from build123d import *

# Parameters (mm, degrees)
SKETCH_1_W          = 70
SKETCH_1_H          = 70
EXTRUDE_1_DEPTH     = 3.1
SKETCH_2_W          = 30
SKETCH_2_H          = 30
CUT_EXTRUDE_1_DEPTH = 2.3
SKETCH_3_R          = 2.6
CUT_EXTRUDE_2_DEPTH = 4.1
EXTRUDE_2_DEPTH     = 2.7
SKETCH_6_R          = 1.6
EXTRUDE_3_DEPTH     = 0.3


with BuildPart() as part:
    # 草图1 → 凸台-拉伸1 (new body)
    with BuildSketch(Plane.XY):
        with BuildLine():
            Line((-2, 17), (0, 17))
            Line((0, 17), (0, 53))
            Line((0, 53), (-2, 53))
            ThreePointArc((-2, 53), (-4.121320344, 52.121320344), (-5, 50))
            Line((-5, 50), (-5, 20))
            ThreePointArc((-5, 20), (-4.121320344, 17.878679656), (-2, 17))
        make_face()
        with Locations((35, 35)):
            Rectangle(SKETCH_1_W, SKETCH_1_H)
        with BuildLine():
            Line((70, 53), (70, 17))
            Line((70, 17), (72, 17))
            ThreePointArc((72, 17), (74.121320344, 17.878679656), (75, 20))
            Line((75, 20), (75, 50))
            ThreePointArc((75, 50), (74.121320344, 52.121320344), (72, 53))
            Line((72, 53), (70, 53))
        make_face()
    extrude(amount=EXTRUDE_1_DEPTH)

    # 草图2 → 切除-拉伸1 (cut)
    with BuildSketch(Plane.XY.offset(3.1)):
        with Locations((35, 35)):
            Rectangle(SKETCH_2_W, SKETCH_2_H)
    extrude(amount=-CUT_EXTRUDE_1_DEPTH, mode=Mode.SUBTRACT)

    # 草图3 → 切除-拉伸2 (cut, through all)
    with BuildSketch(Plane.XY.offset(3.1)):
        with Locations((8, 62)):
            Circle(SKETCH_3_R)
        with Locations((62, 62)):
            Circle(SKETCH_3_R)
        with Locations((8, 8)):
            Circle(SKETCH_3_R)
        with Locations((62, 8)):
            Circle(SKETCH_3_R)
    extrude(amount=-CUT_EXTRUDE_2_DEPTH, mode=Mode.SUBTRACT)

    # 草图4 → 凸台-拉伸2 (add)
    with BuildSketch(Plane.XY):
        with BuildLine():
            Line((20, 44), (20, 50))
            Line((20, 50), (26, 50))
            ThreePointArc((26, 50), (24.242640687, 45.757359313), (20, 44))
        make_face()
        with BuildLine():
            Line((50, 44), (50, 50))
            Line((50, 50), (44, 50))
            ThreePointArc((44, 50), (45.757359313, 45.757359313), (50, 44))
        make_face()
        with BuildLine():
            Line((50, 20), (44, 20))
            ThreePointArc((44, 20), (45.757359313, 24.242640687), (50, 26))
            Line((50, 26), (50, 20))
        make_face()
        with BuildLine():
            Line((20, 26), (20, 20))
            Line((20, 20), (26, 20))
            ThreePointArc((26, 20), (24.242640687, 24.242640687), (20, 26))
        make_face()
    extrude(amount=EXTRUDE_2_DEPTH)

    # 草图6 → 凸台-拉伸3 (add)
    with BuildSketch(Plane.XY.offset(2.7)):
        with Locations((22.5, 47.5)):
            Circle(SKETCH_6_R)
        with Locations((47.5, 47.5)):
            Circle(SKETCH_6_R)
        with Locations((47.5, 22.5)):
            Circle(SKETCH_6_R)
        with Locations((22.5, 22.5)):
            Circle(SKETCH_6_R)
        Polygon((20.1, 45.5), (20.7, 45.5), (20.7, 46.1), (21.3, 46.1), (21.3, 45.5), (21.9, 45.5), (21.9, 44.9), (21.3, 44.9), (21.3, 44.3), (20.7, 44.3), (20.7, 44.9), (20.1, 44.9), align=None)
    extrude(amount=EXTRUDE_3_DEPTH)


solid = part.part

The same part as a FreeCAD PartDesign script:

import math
import FreeCAD as App
import Part
import Sketcher
Q = App.Units.Quantity


def add_polygon(sketch, points):
    """Adds a closed chain of lines whose ends are joined by coincident constraints."""
    first, n = sketch.GeometryCount, len(points)
    for a, b in zip(points, points[1:] + points[:1]):
        sketch.addGeometry(Part.LineSegment(App.Vector(*a, 0), App.Vector(*b, 0)), False)
    for i in range(n):
        sketch.addConstraint(Sketcher.Constraint("Coincident", first + i, 2, first + (i + 1) % n, 1))

doc = App.newDocument("Part")
params = doc.addObject("Spreadsheet::Sheet", "Params")
for row, (alias, value) in enumerate([
    ("sketch1_radius", "3 mm"),
    ("sketch1_width", "2 mm"),
    ("sketch1_width2", "70 mm"),
    ("sketch1_height", "17 mm"),
    ("sketch1_height2", "30 mm"),
    ("pad1_length", "3.1 mm"),
    ("sketch2_width", "30 mm"),
    ("pocket1_length", "2.3 mm"),
    ("sketch3_diameter", "5.2 mm"),
    ("sketch4_radius", "6 mm"),
    ("pad2_length", "2.7 mm"),
    ("sketch5_diameter", "3.2 mm"),
    ("sketch5_width", "0.6 mm"),
    ("pad3_length", "0.3 mm"),
], start=1):
    params.set(f"A{row}", alias)
    params.set(f"B{row}", "=" + value)
    params.setAlias(f"B{row}", alias)

body = doc.addObject("PartDesign::Body", "Body")

# Sketch on XY plane
sketch1 = body.newObject("Sketcher::SketchObject", "Sketch")
sketch1.AttachmentSupport = (doc.getObject("XY_Plane"), [""])
sketch1.MapMode = "FlatFace"
sketch1.addGeometry([
    Part.LineSegment(App.Vector(-2, 17, 0), App.Vector(0, 17, 0)),  # 0
    Part.LineSegment(App.Vector(0, 17, 0), App.Vector(0, 0, 0)),  # 1
    Part.LineSegment(App.Vector(0, 0, 0), App.Vector(70, 0, 0)),  # 2
    Part.LineSegment(App.Vector(70, 0, 0), App.Vector(70, 17, 0)),  # 3
    Part.LineSegment(App.Vector(70, 17, 0), App.Vector(72, 17, 0)),  # 4
    Part.ArcOfCircle(Part.Circle(App.Vector(72, 20, 0), App.Vector(0, 0, 1), 3), math.radians(-90), math.radians(0)),  # 5
    Part.LineSegment(App.Vector(75, 20, 0), App.Vector(75, 50, 0)),  # 6
    Part.ArcOfCircle(Part.Circle(App.Vector(72, 50, 0), App.Vector(0, 0, 1), 3), math.radians(0), math.radians(90)),  # 7
    Part.LineSegment(App.Vector(72, 53, 0), App.Vector(70, 53, 0)),  # 8
    Part.LineSegment(App.Vector(70, 53, 0), App.Vector(70, 70, 0)),  # 9
    Part.LineSegment(App.Vector(70, 70, 0), App.Vector(0, 70, 0)),  # 10
    Part.LineSegment(App.Vector(0, 70, 0), App.Vector(0, 53, 0)),  # 11
    Part.LineSegment(App.Vector(0, 53, 0), App.Vector(-2, 53, 0)),  # 12
    Part.ArcOfCircle(Part.Circle(App.Vector(-2, 50, 0), App.Vector(0, 0, 1), 3), math.radians(90), math.radians(180)),  # 13
    Part.LineSegment(App.Vector(-5, 50, 0), App.Vector(-5, 20, 0)),  # 14
    Part.ArcOfCircle(Part.Circle(App.Vector(-2, 20, 0), App.Vector(0, 0, 1), 3), math.radians(180), math.radians(270)),  # 15
], False)
sketch1.addConstraint([
    Sketcher.Constraint("Coincident", 0, 2, 1, 1),
    Sketcher.Constraint("Coincident", 1, 2, 2, 1),
    Sketcher.Constraint("Coincident", 2, 2, 3, 1),
    Sketcher.Constraint("Coincident", 3, 2, 4, 1),
    Sketcher.Constraint("Tangent", 4, 2, 5, 1),
    Sketcher.Constraint("Tangent", 5, 2, 6, 1),
    Sketcher.Constraint("Tangent", 6, 2, 7, 1),
    Sketcher.Constraint("Tangent", 7, 2, 8, 1),
    Sketcher.Constraint("Coincident", 8, 2, 9, 1),
    Sketcher.Constraint("Coincident", 9, 2, 10, 1),
    Sketcher.Constraint("Coincident", 10, 2, 11, 1),
    Sketcher.Constraint("Coincident", 11, 2, 12, 1),
    Sketcher.Constraint("Tangent", 12, 2, 13, 1),
    Sketcher.Constraint("Tangent", 13, 2, 14, 1),
    Sketcher.Constraint("Tangent", 14, 2, 15, 1),
    Sketcher.Constraint("Tangent", 15, 2, 0, 1),
    Sketcher.Constraint("Horizontal", 0),
    Sketcher.Constraint("Vertical", 1),
    Sketcher.Constraint("Horizontal", 2),
    Sketcher.Constraint("Vertical", 3),
    Sketcher.Constraint("Horizontal", 4),
    Sketcher.Constraint("Vertical", 6),
    Sketcher.Constraint("Horizontal", 8),
    Sketcher.Constraint("Vertical", 9),
    Sketcher.Constraint("Horizontal", 10),
    Sketcher.Constraint("Vertical", 11),
    Sketcher.Constraint("Horizontal", 12),
    Sketcher.Constraint("Vertical", 14),
    Sketcher.Constraint("Coincident", 1, 2, -1, 1),
    Sketcher.Constraint("Equal", 5, 7),
    Sketcher.Constraint("Equal", 7, 13),
    Sketcher.Constraint("Equal", 13, 15),
    Sketcher.Constraint("PointOnObject", 10, 2, -2),
    Sketcher.Constraint("Horizontal", 7, 3, 13, 3),
    Sketcher.Constraint("Horizontal", 5, 3, 15, 3),
    Sketcher.Constraint("Vertical", 3, 2, 8, 2),
    Sketcher.Constraint("Equal", 0, 4),
    Sketcher.Constraint("Equal", 3, 9),
    Sketcher.Constraint("Radius", 5, Q("3 mm")),
    Sketcher.Constraint("DistanceX", 0, 1, 0, 2, Q("2 mm")),
    Sketcher.Constraint("DistanceX", 2, 1, 2, 2, Q("70 mm")),
    Sketcher.Constraint("DistanceY", 1, 2, 1, 1, Q("17 mm")),
    Sketcher.Constraint("DistanceY", 6, 1, 6, 2, Q("30 mm")),
])
sketch1.setExpression("Constraints[38]", "Params.sketch1_radius")
sketch1.setExpression("Constraints[39]", "Params.sketch1_width")
sketch1.setExpression("Constraints[40]", "Params.sketch1_width2")
sketch1.setExpression("Constraints[41]", "Params.sketch1_height")
sketch1.setExpression("Constraints[42]", "Params.sketch1_height2")
pad1 = body.newObject("PartDesign::Pad", "Pad")
pad1.Profile = sketch1
pad1.setExpression("Length", "Params.pad1_length")

# Sketch on XY plane
sketch2 = body.newObject("Sketcher::SketchObject", "Sketch001")
sketch2.AttachmentSupport = (doc.getObject("XY_Plane"), [""])
sketch2.MapMode = "FlatFace"
sketch2.AttachmentOffset = App.Placement(App.Vector(0, 0, 3.1), App.Rotation())
add_polygon(sketch2, [(20, 50), (20, 20), (50, 20), (50, 50)])  # lines 0-3
sketch2.addConstraint([
    Sketcher.Constraint("Vertical", 0),
    Sketcher.Constraint("Horizontal", 1),
    Sketcher.Constraint("Vertical", 2),
    Sketcher.Constraint("Horizontal", 3),
    Sketcher.Constraint("Equal", 3, 0),
    Sketcher.Constraint("DistanceX", 1, 1, 1, 2, Q("30 mm")),
    Sketcher.Constraint("DistanceX", -1, 1, 0, 2, Q("20 mm")),
    Sketcher.Constraint("DistanceY", -1, 1, 0, 2, Q("20 mm")),
])
sketch2.setExpression("Constraints[9]", "Params.sketch2_width")
pocket1 = body.newObject("PartDesign::Pocket", "Pocket")
pocket1.Profile = sketch2
pocket1.setExpression("Length", "Params.pocket1_length")

# Sketch on XY plane
sketch3 = body.newObject("Sketcher::SketchObject", "Sketch002")
sketch3.AttachmentSupport = (doc.getObject("XY_Plane"), [""])
sketch3.MapMode = "FlatFace"
sketch3.AttachmentOffset = App.Placement(App.Vector(0, 0, 3.1), App.Rotation())
sketch3.addGeometry([
    Part.Circle(App.Vector(8, 62, 0), App.Vector(0, 0, 1), 2.6),
    Part.Circle(App.Vector(62, 62, 0), App.Vector(0, 0, 1), 2.6),
    Part.Circle(App.Vector(8, 8, 0), App.Vector(0, 0, 1), 2.6),
    Part.Circle(App.Vector(62, 8, 0), App.Vector(0, 0, 1), 2.6),
], False)
sketch3.addConstraint([
    Sketcher.Constraint("Equal", 0, 1),
    Sketcher.Constraint("Equal", 1, 2),
    Sketcher.Constraint("Equal", 2, 3),
    Sketcher.Constraint("Horizontal", 0, 3, 1, 3),
    Sketcher.Constraint("Horizontal", 2, 3, 3, 3),
    Sketcher.Constraint("Vertical", 0, 3, 2, 3),
    Sketcher.Constraint("Vertical", 1, 3, 3, 3),
    Sketcher.Constraint("Diameter", 0, Q("5.2 mm")),
    Sketcher.Constraint("DistanceX", -1, 1, 0, 3, Q("8 mm")),
    Sketcher.Constraint("DistanceY", -1, 1, 0, 3, Q("62 mm")),
    Sketcher.Constraint("DistanceX", -1, 1, 1, 3, Q("62 mm")),
    Sketcher.Constraint("DistanceY", -1, 1, 2, 3, Q("8 mm")),
])
sketch3.setExpression("Constraints[7]", "Params.sketch3_diameter")
pocket2 = body.newObject("PartDesign::Pocket", "Pocket001")
pocket2.Profile = sketch3
pocket2.Type = "ThroughAll"

# Sketch on XY plane
sketch4 = body.newObject("Sketcher::SketchObject", "Sketch003")
sketch4.AttachmentSupport = (doc.getObject("XY_Plane"), [""])
sketch4.MapMode = "FlatFace"
sketch4.addGeometry([
    Part.LineSegment(App.Vector(20, 50, 0), App.Vector(20, 44, 0)),  # 0
    Part.ArcOfCircle(Part.Circle(App.Vector(20, 50, 0), App.Vector(0, 0, 1), 6), math.radians(-90), math.radians(0)),  # 1
    Part.LineSegment(App.Vector(26, 50, 0), App.Vector(20, 50, 0)),  # 2
    Part.LineSegment(App.Vector(50, 44, 0), App.Vector(50, 50, 0)),  # 3
    Part.LineSegment(App.Vector(50, 50, 0), App.Vector(44, 50, 0)),  # 4
    Part.ArcOfCircle(Part.Circle(App.Vector(50, 50, 0), App.Vector(0, 0, 1), 6), math.radians(180), math.radians(270)),  # 5
    Part.LineSegment(App.Vector(44, 20, 0), App.Vector(50, 20, 0)),  # 6
    Part.LineSegment(App.Vector(50, 20, 0), App.Vector(50, 26, 0)),  # 7
    Part.ArcOfCircle(Part.Circle(App.Vector(50, 20, 0), App.Vector(0, 0, 1), 6), math.radians(90), math.radians(180)),  # 8
    Part.LineSegment(App.Vector(20, 26, 0), App.Vector(20, 20, 0)),  # 9
    Part.LineSegment(App.Vector(20, 20, 0), App.Vector(26, 20, 0)),  # 10
    Part.ArcOfCircle(Part.Circle(App.Vector(20, 20, 0), App.Vector(0, 0, 1), 6), math.radians(0), math.radians(90)),  # 11
], False)
sketch4.addConstraint([
    Sketcher.Constraint("Coincident", 0, 2, 1, 1),
    Sketcher.Constraint("Coincident", 1, 2, 2, 1),
    Sketcher.Constraint("Coincident", 2, 2, 0, 1),
    Sketcher.Constraint("Coincident", 3, 2, 4, 1),
    Sketcher.Constraint("Coincident", 4, 2, 5, 1),
    Sketcher.Constraint("Coincident", 5, 2, 3, 1),
    Sketcher.Constraint("Coincident", 6, 2, 7, 1),
    Sketcher.Constraint("Coincident", 7, 2, 8, 1),
    Sketcher.Constraint("Coincident", 8, 2, 6, 1),
    Sketcher.Constraint("Coincident", 9, 2, 10, 1),
    Sketcher.Constraint("Coincident", 10, 2, 11, 1),
    Sketcher.Constraint("Coincident", 11, 2, 9, 1),
    Sketcher.Constraint("Vertical", 0),
    Sketcher.Constraint("Horizontal", 2),
    Sketcher.Constraint("Vertical", 3),
    Sketcher.Constraint("Horizontal", 4),
    Sketcher.Constraint("Horizontal", 6),
    Sketcher.Constraint("Vertical", 7),
    Sketcher.Constraint("Vertical", 9),
    Sketcher.Constraint("Horizontal", 10),
    Sketcher.Constraint("Coincident", 2, 2, 1, 3),
    Sketcher.Constraint("Coincident", 3, 2, 5, 3),
    Sketcher.Constraint("Coincident", 6, 2, 8, 3),
    Sketcher.Constraint("Coincident", 9, 2, 11, 3),
    Sketcher.Constraint("Equal", 1, 5),
    Sketcher.Constraint("Equal", 5, 8),
    Sketcher.Constraint("Equal", 8, 11),
    Sketcher.Constraint("Horizontal", 1, 3, 5, 3),
    Sketcher.Constraint("Horizontal", 8, 3, 11, 3),
    Sketcher.Constraint("Vertical", 5, 3, 8, 3),
    Sketcher.Constraint("Vertical", 1, 3, 11, 3),
    Sketcher.Constraint("Radius", 1, Q("6 mm")),
    Sketcher.Constraint("DistanceX", -1, 1, 1, 3, Q("20 mm")),
    Sketcher.Constraint("DistanceY", -1, 1, 1, 3, Q("50 mm")),
    Sketcher.Constraint("DistanceX", -1, 1, 5, 3, Q("50 mm")),
    Sketcher.Constraint("DistanceY", -1, 1, 8, 3, Q("20 mm")),
])
sketch4.setExpression("Constraints[31]", "Params.sketch4_radius")
pad2 = body.newObject("PartDesign::Pad", "Pad001")
pad2.Profile = sketch4
pad2.setExpression("Length", "Params.pad2_length")

# Sketch on XY plane
sketch5 = body.newObject("Sketcher::SketchObject", "Sketch004")
sketch5.AttachmentSupport = (doc.getObject("XY_Plane"), [""])
sketch5.MapMode = "FlatFace"
sketch5.AttachmentOffset = App.Placement(App.Vector(0, 0, 2.7), App.Rotation())
sketch5.addGeometry(Part.Circle(App.Vector(22.5, 47.5, 0), App.Vector(0, 0, 1), 1.6), False)  # 0
sketch5.addGeometry(Part.Circle(App.Vector(47.5, 47.5, 0), App.Vector(0, 0, 1), 1.6), False)  # 1
sketch5.addGeometry(Part.Circle(App.Vector(47.5, 22.5, 0), App.Vector(0, 0, 1), 1.6), False)  # 2
sketch5.addGeometry(Part.Circle(App.Vector(22.5, 22.5, 0), App.Vector(0, 0, 1), 1.6), False)  # 3
add_polygon(sketch5, [(20.7, 45.5), (20.1, 45.5), (20.1, 44.9), (20.7, 44.9), (20.7, 44.3), (21.3, 44.3), (21.3, 44.9), (21.9, 44.9), (21.9, 45.5), (21.3, 45.5), (21.3, 46.1), (20.7, 46.1)])  # lines 4-15
sketch5.addConstraint([
    Sketcher.Constraint("Horizontal", 4),
    Sketcher.Constraint("Vertical", 5),
    Sketcher.Constraint("Horizontal", 6),
    Sketcher.Constraint("Vertical", 7),
    Sketcher.Constraint("Horizontal", 8),
    Sketcher.Constraint("Vertical", 9),
    Sketcher.Constraint("Horizontal", 10),
    Sketcher.Constraint("Vertical", 11),
    Sketcher.Constraint("Horizontal", 12),
    Sketcher.Constraint("Vertical", 13),
    Sketcher.Constraint("Horizontal", 14),
    Sketcher.Constraint("Vertical", 15),
    Sketcher.Constraint("Equal", 0, 1),
    Sketcher.Constraint("Equal", 1, 2),
    Sketcher.Constraint("Equal", 2, 3),
    Sketcher.Constraint("Horizontal", 0, 3, 1, 3),
    Sketcher.Constraint("Horizontal", 2, 3, 3, 3),
    Sketcher.Constraint("Horizontal", 6, 2, 9, 2),
    Sketcher.Constraint("Horizontal", 4, 2, 11, 2),
    Sketcher.Constraint("Vertical", 1, 3, 2, 3),
    Sketcher.Constraint("Vertical", 0, 3, 3, 3),
    Sketcher.Constraint("Vertical", 9, 2, 12, 2),
    Sketcher.Constraint("Vertical", 7, 2, 14, 2),
    Sketcher.Constraint("Equal", 6, 8),
    Sketcher.Constraint("Equal", 8, 10),
    Sketcher.Constraint("Equal", 14, 5),
    Sketcher.Constraint("Equal", 5, 7),
    Sketcher.Constraint("Equal", 11, 13),
    Sketcher.Constraint("Diameter", 0, Q("3.2 mm")),
    Sketcher.Constraint("DistanceX", 4, 2, 4, 1, Q("0.6 mm")),
    Sketcher.Constraint("DistanceX", 0, 3, 1, 3, Q("25 mm")),
    Sketcher.Constraint("DistanceY", 2, 3, 1, 3, Q("25 mm")),
    Sketcher.Constraint("DistanceY", 4, 2, 0, 3, Q("2 mm")),
    Sketcher.Constraint("DistanceX", -1, 1, 0, 3, Q("22.5 mm")),
    Sketcher.Constraint("DistanceY", -1, 1, 0, 3, Q("47.5 mm")),
    Sketcher.Constraint("DistanceX", -1, 1, 4, 2, Q("20.1 mm")),
])
sketch5.setExpression("Constraints[40]", "Params.sketch5_diameter")
sketch5.setExpression("Constraints[41]", "Params.sketch5_width")
pad3 = body.newObject("PartDesign::Pad", "Pad002")
pad3.Profile = sketch5
pad3.setExpression("Length", "Params.pad3_length")

doc.recompute()
